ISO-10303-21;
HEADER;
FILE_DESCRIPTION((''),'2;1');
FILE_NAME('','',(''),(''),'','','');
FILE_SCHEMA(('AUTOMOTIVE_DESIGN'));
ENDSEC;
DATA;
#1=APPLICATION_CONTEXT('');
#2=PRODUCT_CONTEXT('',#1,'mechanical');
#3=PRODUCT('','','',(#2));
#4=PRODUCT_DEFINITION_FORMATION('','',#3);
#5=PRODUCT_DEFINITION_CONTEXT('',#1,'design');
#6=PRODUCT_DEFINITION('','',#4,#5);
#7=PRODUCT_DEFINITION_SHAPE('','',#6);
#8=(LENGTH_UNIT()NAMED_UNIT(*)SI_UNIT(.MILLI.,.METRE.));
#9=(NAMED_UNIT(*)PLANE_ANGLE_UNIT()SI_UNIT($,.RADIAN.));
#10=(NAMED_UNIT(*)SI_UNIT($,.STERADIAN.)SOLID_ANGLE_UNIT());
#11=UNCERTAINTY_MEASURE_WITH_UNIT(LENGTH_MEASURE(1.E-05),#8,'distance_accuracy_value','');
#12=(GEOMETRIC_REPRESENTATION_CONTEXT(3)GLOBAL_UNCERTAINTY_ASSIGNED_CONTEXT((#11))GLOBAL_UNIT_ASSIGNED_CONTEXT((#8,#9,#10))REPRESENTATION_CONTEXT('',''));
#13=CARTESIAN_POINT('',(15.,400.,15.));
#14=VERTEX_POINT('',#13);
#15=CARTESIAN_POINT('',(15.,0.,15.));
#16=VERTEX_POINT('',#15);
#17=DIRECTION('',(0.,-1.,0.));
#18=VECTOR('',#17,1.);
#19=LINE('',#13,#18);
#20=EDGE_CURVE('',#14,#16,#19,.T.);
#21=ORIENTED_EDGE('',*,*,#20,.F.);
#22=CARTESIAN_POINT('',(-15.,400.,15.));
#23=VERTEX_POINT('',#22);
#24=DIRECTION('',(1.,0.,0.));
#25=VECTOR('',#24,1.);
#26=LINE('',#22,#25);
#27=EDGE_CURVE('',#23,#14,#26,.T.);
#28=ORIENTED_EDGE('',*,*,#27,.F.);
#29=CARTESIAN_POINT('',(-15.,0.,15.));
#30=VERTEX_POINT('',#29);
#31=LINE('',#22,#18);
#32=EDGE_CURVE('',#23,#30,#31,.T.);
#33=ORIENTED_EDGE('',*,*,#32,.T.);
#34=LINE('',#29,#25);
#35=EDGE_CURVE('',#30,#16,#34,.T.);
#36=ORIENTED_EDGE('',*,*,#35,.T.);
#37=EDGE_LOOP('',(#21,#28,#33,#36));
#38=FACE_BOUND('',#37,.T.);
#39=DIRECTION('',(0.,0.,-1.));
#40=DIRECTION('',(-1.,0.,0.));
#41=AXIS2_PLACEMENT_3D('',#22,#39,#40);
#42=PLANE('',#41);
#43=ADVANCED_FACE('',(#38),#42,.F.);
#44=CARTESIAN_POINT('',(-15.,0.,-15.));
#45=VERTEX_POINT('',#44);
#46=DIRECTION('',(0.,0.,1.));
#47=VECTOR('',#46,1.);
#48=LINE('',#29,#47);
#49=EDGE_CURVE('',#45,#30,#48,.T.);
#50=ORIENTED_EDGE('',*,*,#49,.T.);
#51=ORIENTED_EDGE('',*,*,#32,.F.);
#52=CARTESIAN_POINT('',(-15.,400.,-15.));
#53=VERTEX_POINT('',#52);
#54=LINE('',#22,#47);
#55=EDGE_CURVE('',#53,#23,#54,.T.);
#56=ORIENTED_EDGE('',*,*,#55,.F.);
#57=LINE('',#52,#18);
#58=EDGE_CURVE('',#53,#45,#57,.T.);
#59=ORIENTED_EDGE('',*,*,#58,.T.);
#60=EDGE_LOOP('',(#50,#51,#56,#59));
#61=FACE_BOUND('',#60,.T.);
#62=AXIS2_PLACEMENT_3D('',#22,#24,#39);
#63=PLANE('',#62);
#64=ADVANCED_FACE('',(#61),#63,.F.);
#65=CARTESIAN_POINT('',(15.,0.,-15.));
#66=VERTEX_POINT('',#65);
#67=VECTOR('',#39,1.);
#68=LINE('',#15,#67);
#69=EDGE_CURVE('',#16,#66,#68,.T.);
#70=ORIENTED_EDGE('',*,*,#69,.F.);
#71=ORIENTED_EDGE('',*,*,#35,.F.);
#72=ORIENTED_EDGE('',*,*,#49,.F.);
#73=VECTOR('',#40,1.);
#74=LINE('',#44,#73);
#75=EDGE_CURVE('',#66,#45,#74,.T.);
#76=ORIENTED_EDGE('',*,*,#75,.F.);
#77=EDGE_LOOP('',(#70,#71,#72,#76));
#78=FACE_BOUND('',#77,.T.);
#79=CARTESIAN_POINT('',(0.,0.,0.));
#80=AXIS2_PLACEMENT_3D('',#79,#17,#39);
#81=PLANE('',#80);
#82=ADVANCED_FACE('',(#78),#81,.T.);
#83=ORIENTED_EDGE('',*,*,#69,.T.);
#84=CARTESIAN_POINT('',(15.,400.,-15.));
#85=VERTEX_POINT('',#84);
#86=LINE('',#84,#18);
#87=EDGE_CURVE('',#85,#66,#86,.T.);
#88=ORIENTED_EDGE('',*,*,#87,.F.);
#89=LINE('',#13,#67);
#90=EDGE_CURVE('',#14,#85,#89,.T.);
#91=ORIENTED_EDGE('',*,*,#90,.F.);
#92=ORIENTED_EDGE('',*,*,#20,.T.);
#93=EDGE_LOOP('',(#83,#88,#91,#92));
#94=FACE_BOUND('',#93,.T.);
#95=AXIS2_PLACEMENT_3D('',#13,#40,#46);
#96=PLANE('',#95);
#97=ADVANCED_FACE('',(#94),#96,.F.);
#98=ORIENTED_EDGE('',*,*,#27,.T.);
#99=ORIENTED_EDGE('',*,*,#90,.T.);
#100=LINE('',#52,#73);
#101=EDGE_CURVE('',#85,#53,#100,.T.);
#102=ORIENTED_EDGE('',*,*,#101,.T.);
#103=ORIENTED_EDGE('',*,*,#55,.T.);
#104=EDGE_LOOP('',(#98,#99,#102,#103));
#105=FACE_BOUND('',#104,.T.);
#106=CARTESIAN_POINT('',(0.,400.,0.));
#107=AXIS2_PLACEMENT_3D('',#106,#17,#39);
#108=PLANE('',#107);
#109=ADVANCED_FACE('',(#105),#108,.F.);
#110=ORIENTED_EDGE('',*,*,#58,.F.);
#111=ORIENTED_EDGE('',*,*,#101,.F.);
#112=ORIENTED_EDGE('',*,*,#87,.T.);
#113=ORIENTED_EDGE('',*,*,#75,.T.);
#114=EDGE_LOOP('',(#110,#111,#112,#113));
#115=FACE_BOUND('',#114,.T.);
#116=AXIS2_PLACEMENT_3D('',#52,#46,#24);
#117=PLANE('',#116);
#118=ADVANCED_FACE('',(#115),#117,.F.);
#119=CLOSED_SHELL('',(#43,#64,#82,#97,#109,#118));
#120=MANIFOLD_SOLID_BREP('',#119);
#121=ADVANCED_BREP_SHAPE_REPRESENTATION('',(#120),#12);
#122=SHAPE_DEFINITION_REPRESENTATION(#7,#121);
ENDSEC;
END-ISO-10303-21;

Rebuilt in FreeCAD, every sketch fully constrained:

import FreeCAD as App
import Part
import Sketcher
from FreeCAD import Vector
Q = App.Units.Quantity


def add_polygon(sketch, points):
    """Adds a closed chain of lines whose ends are joined by coincident constraints."""
    first, n = sketch.GeometryCount, len(points)
    for a, b in zip(points, points[1:] + points[:1]):
        sketch.addGeometry(Part.LineSegment(App.Vector(*a, 0), App.Vector(*b, 0)), False)
    for i in range(n):
        sketch.addConstraint(Sketcher.Constraint("Coincident", first + i, 2, first + (i + 1) % n, 1))

doc = App.newDocument("Part")
body = doc.addObject("PartDesign::Body", "Body")

# Sketch on XZ plane
sketch1 = doc.addObject("Sketcher::SketchObject", "Sketch")
body.addObject(sketch1)
sketch1.AttachmentSupport = (doc.XZ_Plane, [""])
sketch1.MapMode = "FlatFace"
add_polygon(sketch1, [(-15, -15), (-15, 15), (15, 15), (15, -15)])  # lines 0-3
sketch1.addConstraint(Sketcher.Constraint("Vertical", 0))
sketch1.addConstraint(Sketcher.Constraint("Horizontal", 1))
sketch1.addConstraint(Sketcher.Constraint("Vertical", 2))
sketch1.addConstraint(Sketcher.Constraint("Horizontal", 3))
sketch1.addConstraint(Sketcher.Constraint("Symmetric", 0, 2, 2, 2, -1, 1))
sketch1.addConstraint(Sketcher.Constraint("Equal", 3, 0))
sketch1.addConstraint(Sketcher.Constraint("DistanceX", 1, 1, 1, 2, Q("30 mm")))
pad1 = doc.addObject("PartDesign::Pad", "Pad")
body.addObject(pad1)
pad1.Profile = sketch1
pad1.Length = 400
pad1.Reversed = True

doc.recompute()
